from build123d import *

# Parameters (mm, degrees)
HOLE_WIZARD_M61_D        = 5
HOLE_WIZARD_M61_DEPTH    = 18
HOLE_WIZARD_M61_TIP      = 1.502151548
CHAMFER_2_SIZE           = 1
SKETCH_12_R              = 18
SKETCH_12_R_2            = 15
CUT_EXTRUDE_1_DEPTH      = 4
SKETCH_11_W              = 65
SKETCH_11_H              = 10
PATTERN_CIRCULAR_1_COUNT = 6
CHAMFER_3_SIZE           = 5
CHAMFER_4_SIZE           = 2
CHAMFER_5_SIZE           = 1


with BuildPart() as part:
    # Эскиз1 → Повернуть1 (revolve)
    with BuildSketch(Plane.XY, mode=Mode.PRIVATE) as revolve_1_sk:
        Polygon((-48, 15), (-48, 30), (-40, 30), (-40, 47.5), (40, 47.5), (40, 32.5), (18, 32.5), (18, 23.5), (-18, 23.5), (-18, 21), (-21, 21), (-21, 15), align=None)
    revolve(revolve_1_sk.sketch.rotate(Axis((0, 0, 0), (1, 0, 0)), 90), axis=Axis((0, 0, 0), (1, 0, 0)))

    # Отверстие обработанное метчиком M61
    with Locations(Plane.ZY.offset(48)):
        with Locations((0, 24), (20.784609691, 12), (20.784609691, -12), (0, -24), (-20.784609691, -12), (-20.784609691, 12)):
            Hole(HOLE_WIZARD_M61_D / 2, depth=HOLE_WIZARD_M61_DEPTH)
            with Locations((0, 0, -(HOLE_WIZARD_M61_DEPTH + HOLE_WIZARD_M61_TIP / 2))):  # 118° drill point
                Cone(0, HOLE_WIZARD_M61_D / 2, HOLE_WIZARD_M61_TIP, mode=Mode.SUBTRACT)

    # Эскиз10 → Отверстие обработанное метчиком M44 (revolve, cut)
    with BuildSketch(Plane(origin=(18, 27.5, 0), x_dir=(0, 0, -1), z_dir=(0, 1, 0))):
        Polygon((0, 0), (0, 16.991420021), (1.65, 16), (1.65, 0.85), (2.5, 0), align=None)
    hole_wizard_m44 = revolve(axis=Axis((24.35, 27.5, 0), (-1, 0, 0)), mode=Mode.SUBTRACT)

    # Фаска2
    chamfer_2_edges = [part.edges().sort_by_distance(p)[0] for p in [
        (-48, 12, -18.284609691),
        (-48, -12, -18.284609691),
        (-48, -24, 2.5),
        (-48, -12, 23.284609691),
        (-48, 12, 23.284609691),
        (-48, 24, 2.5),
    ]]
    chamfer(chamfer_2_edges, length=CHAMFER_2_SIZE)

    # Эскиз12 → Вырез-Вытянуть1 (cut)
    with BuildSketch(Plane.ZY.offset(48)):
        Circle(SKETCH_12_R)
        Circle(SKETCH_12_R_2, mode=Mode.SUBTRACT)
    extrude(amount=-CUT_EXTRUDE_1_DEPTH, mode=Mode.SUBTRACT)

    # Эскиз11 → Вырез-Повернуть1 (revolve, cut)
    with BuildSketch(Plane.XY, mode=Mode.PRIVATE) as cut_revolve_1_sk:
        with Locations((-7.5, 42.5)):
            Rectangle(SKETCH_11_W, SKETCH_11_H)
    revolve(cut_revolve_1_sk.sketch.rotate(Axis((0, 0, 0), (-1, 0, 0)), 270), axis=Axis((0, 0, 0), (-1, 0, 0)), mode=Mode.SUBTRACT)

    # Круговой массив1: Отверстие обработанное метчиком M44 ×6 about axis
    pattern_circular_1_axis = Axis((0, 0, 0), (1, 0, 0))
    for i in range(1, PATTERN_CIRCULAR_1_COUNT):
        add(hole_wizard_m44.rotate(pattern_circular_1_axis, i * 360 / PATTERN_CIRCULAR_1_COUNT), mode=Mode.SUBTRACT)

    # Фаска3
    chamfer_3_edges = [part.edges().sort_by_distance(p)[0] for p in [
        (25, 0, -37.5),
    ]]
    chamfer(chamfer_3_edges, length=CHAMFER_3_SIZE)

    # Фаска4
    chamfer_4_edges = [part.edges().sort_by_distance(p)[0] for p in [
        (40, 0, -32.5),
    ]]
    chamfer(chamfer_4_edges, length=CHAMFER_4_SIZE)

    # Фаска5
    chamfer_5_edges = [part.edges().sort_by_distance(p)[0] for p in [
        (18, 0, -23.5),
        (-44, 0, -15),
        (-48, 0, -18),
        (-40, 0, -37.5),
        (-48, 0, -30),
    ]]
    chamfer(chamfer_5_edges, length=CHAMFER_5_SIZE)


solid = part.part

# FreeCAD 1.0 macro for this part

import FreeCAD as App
import Part
import Sketcher
Q = App.Units.Quantity


def edges_at(feature, points):
    """Names of the edges that pass closest to the given points."""
    edges = feature.Shape.Edges
    near = lambda p: min(range(len(edges)), key=lambda i: edges[i].distToShape(Part.Vertex(*p))[0])
    return sorted({f"Edge{near(p) + 1}" for p in points})


def add_polygon(sketch, points):
    """Adds a closed chain of lines whose ends are joined by coincident constraints."""
    first, n = sketch.GeometryCount, len(points)
    for a, b in zip(points, points[1:] + points[:1]):
        sketch.addGeometry(Part.LineSegment(App.Vector(*a, 0), App.Vector(*b, 0)), False)
    for i in range(n):
        sketch.addConstraint(Sketcher.Constraint("Coincident", first + i, 2, first + (i + 1) % n, 1))

doc = App.newDocument("Part")
body = doc.addObject("PartDesign::Body", "Body")

# Sketch on XY plane
sketch1 = doc.addObject("Sketcher::SketchObject", "Sketch")
body.addObject(sketch1)
sketch1.AttachmentSupport = (doc.XY_Plane, [""])
sketch1.MapMode = "FlatFace"
add_polygon(sketch1, [(-48, 30), (-48, 15), (-21, 15), (-21, 21), (-18, 21), (-18, 23.5), (18, 23.5), (18, 32.5), (40, 32.5), (40, 47.5), (-40, 47.5), (-40, 30)])  # lines 0-11
sketch1.addConstraint(Sketcher.Constraint("Vertical", 0))
sketch1.addConstraint(Sketcher.Constraint("Horizontal", 1))
sketch1.addConstraint(Sketcher.Constraint("Vertical", 2))
sketch1.addConstraint(Sketcher.Constraint("Horizontal", 3))
sketch1.addConstraint(Sketcher.Constraint("Vertical", 4))
sketch1.addConstraint(Sketcher.Constraint("Horizontal", 5))
sketch1.addConstraint(Sketcher.Constraint("Vertical", 6))
sketch1.addConstraint(Sketcher.Constraint("Horizontal", 7))
sketch1.addConstraint(Sketcher.Constraint("Vertical", 8))
sketch1.addConstraint(Sketcher.Constraint("Horizontal", 9))
sketch1.addConstraint(Sketcher.Constraint("Vertical", 10))
sketch1.addConstraint(Sketcher.Constraint("Horizontal", 11))
sketch1.addConstraint(Sketcher.Constraint("Equal", 0, 8))
sketch1.addConstraint(Sketcher.Constraint("DistanceX", 1, 1, 1, 2, Q("27 mm")))
sketch1.addConstraint(Sketcher.Constraint("DistanceX", 3, 1, 3, 2, Q("3 mm")))
sketch1.addConstraint(Sketcher.Constraint("DistanceX", 5, 1, 5, 2, Q("36 mm")))
sketch1.addConstraint(Sketcher.Constraint("DistanceX", 7, 1, 7, 2, Q("22 mm")))
sketch1.addConstraint(Sketcher.Constraint("DistanceX", 9, 2, 9, 1, Q("80 mm")))
sketch1.addConstraint(Sketcher.Constraint("DistanceY", 0, 2, 0, 1, Q("15 mm")))
sketch1.addConstraint(Sketcher.Constraint("DistanceY", 2, 1, 2, 2, Q("6 mm")))
sketch1.addConstraint(Sketcher.Constraint("DistanceY", 6, 1, 6, 2, Q("9 mm")))
sketch1.addConstraint(Sketcher.Constraint("DistanceY", 4, 1, 4, 2, Q("2.5 mm")))
sketch1.addConstraint(Sketcher.Constraint("DistanceX", 0, 2, -1, 1, Q("48 mm")))
sketch1.addConstraint(Sketcher.Constraint("DistanceY", -1, 1, 0, 2, Q("15 mm")))
revolution = doc.addObject("PartDesign::Revolution", "Revolution")
body.addObject(revolution)
revolution.Profile = sketch1
revolution.ReferenceAxis = (sketch1, ["H_Axis"])
revolution.Angle = 360

# Sketch on YZ plane
sketch2 = doc.addObject("Sketcher::SketchObject", "Sketch001")
body.addObject(sketch2)
sketch2.AttachmentSupport = (doc.YZ_Plane, [""])
sketch2.MapMode = "FlatFace"
sketch2.AttachmentOffset = App.Placement(App.Vector(0, 0, -48), App.Rotation())
sketch2.addGeometry(Part.Circle(App.Vector(24, 0, 0), App.Vector(0, 0, 1), 2.5), False)
sketch2.addGeometry(Part.Circle(App.Vector(12, 20.78461, 0), App.Vector(0, 0, 1), 2.5), False)
sketch2.addGeometry(Part.Circle(App.Vector(-12, 20.78461, 0), App.Vector(0, 0, 1), 2.5), False)
sketch2.addGeometry(Part.Circle(App.Vector(-24, 0, 0), App.Vector(0, 0, 1), 2.5), False)
sketch2.addGeometry(Part.Circle(App.Vector(-12, -20.78461, 0), App.Vector(0, 0, 1), 2.5), False)
sketch2.addGeometry(Part.Circle(App.Vector(12, -20.78461, 0), App.Vector(0, 0, 1), 2.5), False)
sketch2.addConstraint(Sketcher.Constraint("Equal", 0, 1))
sketch2.addConstraint(Sketcher.Constraint("Equal", 1, 2))
sketch2.addConstraint(Sketcher.Constraint("Equal", 2, 3))
sketch2.addConstraint(Sketcher.Constraint("Equal", 3, 4))
sketch2.addConstraint(Sketcher.Constraint("Equal", 4, 5))
sketch2.addConstraint(Sketcher.Constraint("Symmetric", 0, 3, 3, 3, -1, 1))
sketch2.addConstraint(Sketcher.Constraint("Symmetric", 1, 3, 4, 3, -1, 1))
sketch2.addConstraint(Sketcher.Constraint("Symmetric", 2, 3, 5, 3, -1, 1))
sketch2.addConstraint(Sketcher.Constraint("Symmetric", 1, 3, 2, 3, -2))
sketch2.addConstraint(Sketcher.Constraint("PointOnObject", 0, 3, -1))
sketch2.addConstraint(Sketcher.Constraint("Diameter", 0, Q("5 mm")))
sketch2.addConstraint(Sketcher.Constraint("DistanceX", -1, 1, 0, 3, Q("24 mm")))
sketch2.addConstraint(Sketcher.Constraint("DistanceX", -1, 1, 1, 3, Q("12 mm")))
sketch2.addConstraint(Sketcher.Constraint("DistanceY", -1, 1, 1, 3, Q("20.78461 mm")))
doc.recompute()
hole = doc.addObject("PartDesign::Hole", "Hole")
body.addObject(hole)
hole.Profile = sketch2
hole.ThreadType = "None"
hole.Diameter = 5
hole.DepthType = "Dimension"
hole.Depth = 18
hole.DrillPoint = "Angled"
hole.DrillPointAngle = 118
hole.Reversed = True

# Sketch on XZ plane
sketch3 = doc.addObject("Sketcher::SketchObject", "Sketch002")
body.addObject(sketch3)
sketch3.AttachmentSupport = (doc.XZ_Plane, [""])
sketch3.MapMode = "FlatFace"
sketch3.AttachmentOffset = App.Placement(App.Vector(0, 0, -27.5), App.Rotation())
add_polygon(sketch3, [(1.00858, 0), (18, 0), (18, -2.5), (17.15, -1.65), (2, -1.65)])  # lines 0-4
sketch3.addConstraint(Sketcher.Constraint("Horizontal", 0))
sketch3.addConstraint(Sketcher.Constraint("Vertical", 1))
sketch3.addConstraint(Sketcher.Constraint("Horizontal", 3))
sketch3.addConstraint(Sketcher.Constraint("PointOnObject", 0, 2, -1))
sketch3.addConstraint(Sketcher.Constraint("Angle", 2, Q("135 deg")))
sketch3.addConstraint(Sketcher.Constraint("Angle", 4, Q("121 deg")))
sketch3.addConstraint(Sketcher.Constraint("DistanceY", 1, 2, 1, 1, Q("2.5 mm")))
sketch3.addConstraint(Sketcher.Constraint("DistanceX", -1, 1, 0, 2, Q("18 mm")))
sketch3.addConstraint(Sketcher.Constraint("DistanceX", -1, 1, 3, 2, Q("2 mm")))
sketch3.addConstraint(Sketcher.Constraint("DistanceX", 3, 2, 3, 1, Q("15.15 mm")))
groove = doc.addObject("PartDesign::Groove", "Groove")
body.addObject(groove)
groove.Profile = sketch3
groove.ReferenceAxis = (sketch3, ["H_Axis"])
groove.Angle = 360
doc.recompute()

chamfer = doc.addObject("PartDesign::Chamfer", "Chamfer")
body.addObject(chamfer)
chamfer.Base = (groove, edges_at(groove, [
    (-48, 12, -18.285),
    (-48, -12, -18.285),
    (-48, -24, 2.5),
    (-48, -12, 23.285),
    (-48, 12, 23.285),
    (-48, 24, 2.5),
]))
chamfer.Size = 1

# Sketch on YZ plane
sketch4 = doc.addObject("Sketcher::SketchObject", "Sketch003")
body.addObject(sketch4)
sketch4.AttachmentSupport = (doc.YZ_Plane, [""])
sketch4.MapMode = "FlatFace"
sketch4.AttachmentOffset = App.Placement(App.Vector(0, 0, -48), App.Rotation())
sketch4.addGeometry(Part.Circle(App.Vector(0, 0, 0), App.Vector(0, 0, 1), 18), False)
sketch4.addGeometry(Part.Circle(App.Vector(0, 0, 0), App.Vector(0, 0, 1), 15), False)
sketch4.addConstraint(Sketcher.Constraint("Coincident", 0, 3, -1, 1))
sketch4.addConstraint(Sketcher.Constraint("Coincident", 1, 3, -1, 1))
sketch4.addConstraint(Sketcher.Constraint("Diameter", 0, Q("36 mm")))
sketch4.addConstraint(Sketcher.Constraint("Diameter", 1, Q("30 mm")))
pocket1 = doc.addObject("PartDesign::Pocket", "Pocket")
body.addObject(pocket1)
pocket1.Profile = sketch4
pocket1.Length = 4
pocket1.Reversed = True

# Sketch on XY plane
sketch5 = doc.addObject("Sketcher::SketchObject", "Sketch004")
body.addObject(sketch5)
sketch5.AttachmentSupport = (doc.XY_Plane, [""])
sketch5.MapMode = "FlatFace"
add_polygon(sketch5, [(-40, 47.5), (-40, 37.5), (25, 37.5), (25, 47.5)])  # lines 0-3
sketch5.addConstraint(Sketcher.Constraint("Vertical", 0))
sketch5.addConstraint(Sketcher.Constraint("Horizontal", 1))
sketch5.addConstraint(Sketcher.Constraint("Vertical", 2))
sketch5.addConstraint(Sketcher.Constraint("Horizontal", 3))
sketch5.addConstraint(Sketcher.Constraint("DistanceX", 1, 1, 1, 2, Q("65 mm")))
sketch5.addConstraint(Sketcher.Constraint("DistanceY", 0, 2, 0, 1, Q("10 mm")))
sketch5.addConstraint(Sketcher.Constraint("DistanceX", 0, 2, -1, 1, Q("40 mm")))
sketch5.addConstraint(Sketcher.Constraint("DistanceY", -1, 1, 0, 2, Q("37.5 mm")))
groove2 = doc.addObject("PartDesign::Groove", "Groove001")
body.addObject(groove2)
groove2.Profile = sketch5
groove2.ReferenceAxis = (sketch5, ["H_Axis"])
groove2.Angle = 360
doc.recompute()

polarpattern = doc.addObject("PartDesign::PolarPattern", "PolarPattern")
body.addObject(polarpattern)
polarpattern.Originals = [groove]
polarpattern.Axis = (doc.X_Axis, [""])
polarpattern.Angle = 360
polarpattern.Occurrences = 6
body.Tip = polarpattern
doc.recompute()

chamfer2 = doc.addObject("PartDesign::Chamfer", "Chamfer001")
body.addObject(chamfer2)
chamfer2.Base = (polarpattern, edges_at(polarpattern, [(25, 0, -37.5)]))
chamfer2.Size = 5
doc.recompute()

chamfer3 = doc.addObject("PartDesign::Chamfer", "Chamfer002")
body.addObject(chamfer3)
chamfer3.Base = (chamfer2, edges_at(chamfer2, [(40, 0, -32.5)]))
chamfer3.Size = 2
doc.recompute()

chamfer4 = doc.addObject("PartDesign::Chamfer", "Chamfer003")
body.addObject(chamfer4)
chamfer4.Base = (chamfer3, edges_at(chamfer3, [
    (18, 0, -23.5),
    (-44, 0, -15),
    (-48, 0, -18),
    (-40, 0, -37.5),
    (-48, 0, -30),
]))
chamfer4.Size = 1

doc.recompute()
